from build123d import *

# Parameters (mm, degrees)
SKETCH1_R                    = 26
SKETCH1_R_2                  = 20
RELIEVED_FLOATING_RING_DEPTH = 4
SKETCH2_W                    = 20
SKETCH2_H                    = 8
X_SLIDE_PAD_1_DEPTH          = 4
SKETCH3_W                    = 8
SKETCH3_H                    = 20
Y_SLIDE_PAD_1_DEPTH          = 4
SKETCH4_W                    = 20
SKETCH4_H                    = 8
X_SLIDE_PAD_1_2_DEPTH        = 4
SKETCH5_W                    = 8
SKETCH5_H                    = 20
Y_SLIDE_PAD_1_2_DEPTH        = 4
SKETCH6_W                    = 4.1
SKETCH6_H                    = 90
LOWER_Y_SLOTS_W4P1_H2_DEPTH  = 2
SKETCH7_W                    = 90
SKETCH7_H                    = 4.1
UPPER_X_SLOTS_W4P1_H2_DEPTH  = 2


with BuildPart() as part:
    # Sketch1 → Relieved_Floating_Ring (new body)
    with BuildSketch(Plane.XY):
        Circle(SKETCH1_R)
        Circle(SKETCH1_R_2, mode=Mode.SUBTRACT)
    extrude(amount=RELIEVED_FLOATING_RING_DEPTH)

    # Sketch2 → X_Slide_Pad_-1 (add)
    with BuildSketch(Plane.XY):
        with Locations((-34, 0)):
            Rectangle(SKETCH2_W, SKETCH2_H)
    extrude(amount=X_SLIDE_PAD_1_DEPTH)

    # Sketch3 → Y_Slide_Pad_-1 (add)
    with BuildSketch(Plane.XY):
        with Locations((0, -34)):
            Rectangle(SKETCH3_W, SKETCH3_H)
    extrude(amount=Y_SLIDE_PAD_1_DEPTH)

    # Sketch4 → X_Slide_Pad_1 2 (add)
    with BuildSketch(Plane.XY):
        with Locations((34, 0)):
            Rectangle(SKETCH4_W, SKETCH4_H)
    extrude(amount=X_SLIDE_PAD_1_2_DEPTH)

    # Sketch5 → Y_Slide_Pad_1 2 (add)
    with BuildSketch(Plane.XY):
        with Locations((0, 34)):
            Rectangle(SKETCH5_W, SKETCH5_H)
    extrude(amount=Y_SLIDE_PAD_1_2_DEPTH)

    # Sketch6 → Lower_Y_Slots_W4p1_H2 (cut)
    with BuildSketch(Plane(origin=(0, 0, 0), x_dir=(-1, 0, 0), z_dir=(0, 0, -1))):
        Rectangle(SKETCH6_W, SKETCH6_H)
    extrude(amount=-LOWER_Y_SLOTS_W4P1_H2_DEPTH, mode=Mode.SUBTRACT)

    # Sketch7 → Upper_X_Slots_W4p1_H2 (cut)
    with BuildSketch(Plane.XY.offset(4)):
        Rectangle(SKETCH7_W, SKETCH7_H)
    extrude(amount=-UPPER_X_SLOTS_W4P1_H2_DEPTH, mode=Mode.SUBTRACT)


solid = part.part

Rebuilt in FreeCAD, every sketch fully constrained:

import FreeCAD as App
import Part
import Sketcher
from FreeCAD import Vector

doc = App.newDocument("Part")
body = doc.addObject("PartDesign::Body", "Body")

# Sketch on XY plane
sketch1 = body.newObject("Sketcher::SketchObject", "Sketch")
sketch1.AttachmentSupport = (doc.getObject("XY_Plane"), [""])
sketch1.MapMode = "FlatFace"
sketch1.addGeometry(Part.Circle(Vector(0, 0, 0), Vector(0, 0, 1), 26), False)
sketch1.addGeometry(Part.Circle(Vector(0, 0, 0), Vector(0, 0, 1), 20), False)
sketch1.addConstraint(Sketcher.Constraint("Coincident", 0, 3, -1, 1))
sketch1.addConstraint(Sketcher.Constraint("Coincident", 1, 3, -1, 1))
sketch1.addConstraint(Sketcher.Constraint("Diameter", 0, 52.0))
sketch1.addConstraint(Sketcher.Constraint("Diameter", 1, 40.0))
pad1 = body.newObject("PartDesign::Pad", "Pad")
pad1.Profile = sketch1
pad1.Length = 4

# Sketch on XY plane
sketch2 = body.newObject("Sketcher::SketchObject", "Sketch001")
sketch2.AttachmentSupport = (doc.getObject("XY_Plane"), [""])
sketch2.MapMode = "FlatFace"
sketch2.addGeometry(Part.LineSegment(Vector(-44, 4, 0), Vector(-44, -4, 0)), False)
sketch2.addGeometry(Part.LineSegment(Vector(-44, -4, 0), Vector(-24, -4, 0)), False)
sketch2.addGeometry(Part.LineSegment(Vector(-24, -4, 0), Vector(-24, 4, 0)), False)
sketch2.addGeometry(Part.LineSegment(Vector(-24, 4, 0), Vector(-44, 4, 0)), False)
sketch2.addConstraint(Sketcher.Constraint("Coincident", 0, 2, 1, 1))
sketch2.addConstraint(Sketcher.Constraint("Coincident", 1, 2, 2, 1))
sketch2.addConstraint(Sketcher.Constraint("Coincident", 2, 2, 3, 1))
sketch2.addConstraint(Sketcher.Constraint("Coincident", 3, 2, 0, 1))
sketch2.addConstraint(Sketcher.Constraint("Vertical", 0))
sketch2.addConstraint(Sketcher.Constraint("Horizontal", 1))
sketch2.addConstraint(Sketcher.Constraint("Vertical", 2))
sketch2.addConstraint(Sketcher.Constraint("Horizontal", 3))
sketch2.addConstraint(Sketcher.Constraint("DistanceX", 1, 1, 1, 2, 20.0))
sketch2.addConstraint(Sketcher.Constraint("DistanceY", 0, 2, 0, 1, 8.0))
sketch2.addConstraint(Sketcher.Constraint("DistanceX", 0, 2, -1, 1, 44.0))
sketch2.addConstraint(Sketcher.Constraint("DistanceY", 0, 2, -1, 1, 4.0))
pad2 = body.newObject("PartDesign::Pad", "Pad001")
pad2.Profile = sketch2
pad2.Length = 4

# Sketch on XY plane
sketch3 = body.newObject("Sketcher::SketchObject", "Sketch002")
sketch3.AttachmentSupport = (doc.getObject("XY_Plane"), [""])
sketch3.MapMode = "FlatFace"
sketch3.addGeometry(Part.LineSegment(Vector(-4, -24, 0), Vector(-4, -44, 0)), False)
sketch3.addGeometry(Part.LineSegment(Vector(-4, -44, 0), Vector(4, -44, 0)), False)
sketch3.addGeometry(Part.LineSegment(Vector(4, -44, 0), Vector(4, -24, 0)), False)
sketch3.addGeometry(Part.LineSegment(Vector(4, -24, 0), Vector(-4, -24, 0)), False)
sketch3.addConstraint(Sketcher.Constraint("Coincident", 0, 2, 1, 1))
sketch3.addConstraint(Sketcher.Constraint("Coincident", 1, 2, 2, 1))
sketch3.addConstraint(Sketcher.Constraint("Coincident", 2, 2, 3, 1))
sketch3.addConstraint(Sketcher.Constraint("Coincident", 3, 2, 0, 1))
sketch3.addConstraint(Sketcher.Constraint("Vertical", 0))
sketch3.addConstraint(Sketcher.Constraint("Horizontal", 1))
sketch3.addConstraint(Sketcher.Constraint("Vertical", 2))
sketch3.addConstraint(Sketcher.Constraint("Horizontal", 3))
sketch3.addConstraint(Sketcher.Constraint("DistanceX", 1, 1, 1, 2, 8.0))
sketch3.addConstraint(Sketcher.Constraint("DistanceY", 0, 2, 0, 1, 20.0))
sketch3.addConstraint(Sketcher.Constraint("DistanceX", 0, 2, -1, 1, 4.0))
sketch3.addConstraint(Sketcher.Constraint("DistanceY", 0, 2, -1, 1, 44.0))
pad3 = body.newObject("PartDesign::Pad", "Pad002")
pad3.Profile = sketch3
pad3.Length = 4

# Sketch on XY plane
sketch4 = body.newObject("Sketcher::SketchObject", "Sketch003")
sketch4.AttachmentSupport = (doc.getObject("XY_Plane"), [""])
sketch4.MapMode = "FlatFace"
sketch4.addGeometry(Part.LineSegment(Vector(24, 4, 0), Vector(24, -4, 0)), False)
sketch4.addGeometry(Part.LineSegment(Vector(24, -4, 0), Vector(44, -4, 0)), False)
sketch4.addGeometry(Part.LineSegment(Vector(44, -4, 0), Vector(44, 4, 0)), False)
sketch4.addGeometry(Part.LineSegment(Vector(44, 4, 0), Vector(24, 4, 0)), False)
sketch4.addConstraint(Sketcher.Constraint("Coincident", 0, 2, 1, 1))
sketch4.addConstraint(Sketcher.Constraint("Coincident", 1, 2, 2, 1))
sketch4.addConstraint(Sketcher.Constraint("Coincident", 2, 2, 3, 1))
sketch4.addConstraint(Sketcher.Constraint("Coincident", 3, 2, 0, 1))
sketch4.addConstraint(Sketcher.Constraint("Vertical", 0))
sketch4.addConstraint(Sketcher.Constraint("Horizontal", 1))
sketch4.addConstraint(Sketcher.Constraint("Vertical", 2))
sketch4.addConstraint(Sketcher.Constraint("Horizontal", 3))
sketch4.addConstraint(Sketcher.Constraint("DistanceX", 1, 1, 1, 2, 20.0))
sketch4.addConstraint(Sketcher.Constraint("DistanceY", 0, 2, 0, 1, 8.0))
sketch4.addConstraint(Sketcher.Constraint("DistanceX", -1, 1, 0, 2, 24.0))
sketch4.addConstraint(Sketcher.Constraint("DistanceY", 0, 2, -1, 1, 4.0))
pad4 = body.newObject("PartDesign::Pad", "Pad003")
pad4.Profile = sketch4
pad4.Length = 4

# Sketch on XY plane
sketch5 = body.newObject("Sketcher::SketchObject", "Sketch004")
sketch5.AttachmentSupport = (doc.getObject("XY_Plane"), [""])
sketch5.MapMode = "FlatFace"
sketch5.addGeometry(Part.LineSegment(Vector(-4, 44, 0), Vector(-4, 24, 0)), False)
sketch5.addGeometry(Part.LineSegment(Vector(-4, 24, 0), Vector(4, 24, 0)), False)
sketch5.addGeometry(Part.LineSegment(Vector(4, 24, 0), Vector(4, 44, 0)), False)
sketch5.addGeometry(Part.LineSegment(Vector(4, 44, 0), Vector(-4, 44, 0)), False)
sketch5.addConstraint(Sketcher.Constraint("Coincident", 0, 2, 1, 1))
sketch5.addConstraint(Sketcher.Constraint("Coincident", 1, 2, 2, 1))
sketch5.addConstraint(Sketcher.Constraint("Coincident", 2, 2, 3, 1))
sketch5.addConstraint(Sketcher.Constraint("Coincident", 3, 2, 0, 1))
sketch5.addConstraint(Sketcher.Constraint("Vertical", 0))
sketch5.addConstraint(Sketcher.Constraint("Horizontal", 1))
sketch5.addConstraint(Sketcher.Constraint("Vertical", 2))
sketch5.addConstraint(Sketcher.Constraint("Horizontal", 3))
sketch5.addConstraint(Sketcher.Constraint("DistanceX", 1, 1, 1, 2, 8.0))
sketch5.addConstraint(Sketcher.Constraint("DistanceY", 0, 2, 0, 1, 20.0))
sketch5.addConstraint(Sketcher.Constraint("DistanceX", 0, 2, -1, 1, 4.0))
sketch5.addConstraint(Sketcher.Constraint("DistanceY", -1, 1, 0, 2, 24.0))
pad5 = body.newObject("PartDesign::Pad", "Pad004")
pad5.Profile = sketch5
pad5.Length = 4

# Sketch on XY plane
sketch6 = body.newObject("Sketcher::SketchObject", "Sketch005")
sketch6.AttachmentSupport = (doc.getObject("XY_Plane"), [""])
sketch6.MapMode = "FlatFace"
sketch6.addGeometry(Part.LineSegment(Vector(2, 45, 0), Vector(2, -45, 0)), False)
sketch6.addGeometry(Part.LineSegment(Vector(2, -45, 0), Vector(-2, -45, 0)), False)
sketch6.addGeometry(Part.LineSegment(Vector(-2, -45, 0), Vector(-2, 45, 0)), False)
sketch6.addGeometry(Part.LineSegment(Vector(-2, 45, 0), Vector(2, 45, 0)), False)
sketch6.addConstraint(Sketcher.Constraint("Coincident", 0, 2, 1, 1))
sketch6.addConstraint(Sketcher.Constraint("Coincident", 1, 2, 2, 1))
sketch6.addConstraint(Sketcher.Constraint("Coincident", 2, 2, 3, 1))
sketch6.addConstraint(Sketcher.Constraint("Coincident", 3, 2, 0, 1))
sketch6.addConstraint(Sketcher.Constraint("Vertical", 0))
sketch6.addConstraint(Sketcher.Constraint("Horizontal", 1))
sketch6.addConstraint(Sketcher.Constraint("Vertical", 2))
sketch6.addConstraint(Sketcher.Constraint("Horizontal", 3))
sketch6.addConstraint(Sketcher.Constraint("Symmetric", 0, 2, 2, 2, -1, 1))
sketch6.addConstraint(Sketcher.Constraint("DistanceY", 0, 2, 0, 1, 90.0))
sketch6.addConstraint(Sketcher.Constraint("DistanceX", 1, 2, 1, 1, 4.1))
pocket1 = body.newObject("PartDesign::Pocket", "Pocket")
pocket1.Profile = sketch6
pocket1.Length = 2
pocket1.Reversed = True

# Sketch on XY plane
sketch7 = body.newObject("Sketcher::SketchObject", "Sketch006")
sketch7.AttachmentSupport = (doc.getObject("XY_Plane"), [""])
sketch7.MapMode = "FlatFace"
sketch7.AttachmentOffset = App.Placement(Vector(0, 0, 4), App.Rotation())
sketch7.addGeometry(Part.LineSegment(Vector(-45, 2, 0), Vector(-45, -2, 0)), False)
sketch7.addGeometry(Part.LineSegment(Vector(-45, -2, 0), Vector(45, -2, 0)), False)
sketch7.addGeometry(Part.LineSegment(Vector(45, -2, 0), Vector(45, 2, 0)), False)
sketch7.addGeometry(Part.LineSegment(Vector(45, 2, 0), Vector(-45, 2, 0)), False)
sketch7.addConstraint(Sketcher.Constraint("Coincident", 0, 2, 1, 1))
sketch7.addConstraint(Sketcher.Constraint("Coincident", 1, 2, 2, 1))
sketch7.addConstraint(Sketcher.Constraint("Coincident", 2, 2, 3, 1))
sketch7.addConstraint(Sketcher.Constraint("Coincident", 3, 2, 0, 1))
sketch7.addConstraint(Sketcher.Constraint("Vertical", 0))
sketch7.addConstraint(Sketcher.Constraint("Horizontal", 1))
sketch7.addConstraint(Sketcher.Constraint("Vertical", 2))
sketch7.addConstraint(Sketcher.Constraint("Horizontal", 3))
sketch7.addConstraint(Sketcher.Constraint("Symmetric", 0, 2, 2, 2, -1, 1))
sketch7.addConstraint(Sketcher.Constraint("DistanceX", 1, 1, 1, 2, 90.0))
sketch7.addConstraint(Sketcher.Constraint("DistanceY", 0, 2, 0, 1, 4.1))
pocket2 = body.newObject("PartDesign::Pocket", "Pocket001")
pocket2.Profile = sketch7
pocket2.Length = 2

doc.recompute()
